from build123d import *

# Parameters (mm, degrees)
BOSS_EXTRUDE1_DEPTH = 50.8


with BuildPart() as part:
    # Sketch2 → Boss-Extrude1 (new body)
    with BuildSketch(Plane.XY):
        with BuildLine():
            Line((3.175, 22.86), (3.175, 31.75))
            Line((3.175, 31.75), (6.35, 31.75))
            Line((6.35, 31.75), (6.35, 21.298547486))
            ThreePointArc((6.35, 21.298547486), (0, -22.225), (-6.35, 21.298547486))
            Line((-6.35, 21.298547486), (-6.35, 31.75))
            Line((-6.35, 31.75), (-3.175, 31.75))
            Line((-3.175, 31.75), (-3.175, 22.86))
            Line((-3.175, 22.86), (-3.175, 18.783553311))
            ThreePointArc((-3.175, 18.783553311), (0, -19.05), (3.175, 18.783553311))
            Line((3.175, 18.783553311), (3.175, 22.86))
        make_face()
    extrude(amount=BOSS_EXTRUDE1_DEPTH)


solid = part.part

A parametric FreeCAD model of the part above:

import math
import FreeCAD as App
import Part
import Sketcher
from FreeCAD import Vector
Q = App.Units.Quantity

doc = App.newDocument("Part")
body = doc.addObject("PartDesign::Body", "Body")

sketch1 = body.newObject("Sketcher::SketchObject", "Sketch")
sketch1.AttachmentSupport = (doc.getObject("XY_Plane"), [""])
sketch1.MapMode = "FlatFace"
sketch1.addGeometry(Part.LineSegment(Vector(6.3, 31.8, 0), Vector(3.2, 31.8, 0)), False)
sketch1.addGeometry(Part.LineSegment(Vector(3.2, 31.8, 0), Vector(3.2, 18.8, 0)), False)
sketch1.addGeometry(Part.ArcOfCircle(Part.Circle(Vector(0, 0, 0), Vector(0, 0, 1), 19.1), math.radians(100), math.radians(440)), False)
sketch1.addGeometry(Part.LineSegment(Vector(-3.2, 18.8, 0), Vector(-3.2, 31.8, 0)), False)
sketch1.addGeometry(Part.LineSegment(Vector(-3.2, 31.8, 0), Vector(-6.3, 31.8, 0)), False)
sketch1.addGeometry(Part.LineSegment(Vector(-6.3, 31.8, 0), Vector(-6.3, 21.3, 0)), False)
sketch1.addGeometry(Part.ArcOfCircle(Part.Circle(Vector(0, 0, 0), Vector(0, 0, 1), 22.2), math.radians(107), math.radians(433)), False)
sketch1.addGeometry(Part.LineSegment(Vector(6.3, 21.3, 0), Vector(6.3, 31.8, 0)), False)
sketch1.addConstraint(Sketcher.Constraint("Coincident", 0, 2, 1, 1))
sketch1.addConstraint(Sketcher.Constraint("Coincident", 1, 2, 2, 2))
sketch1.addConstraint(Sketcher.Constraint("Coincident", 2, 1, 3, 1))
sketch1.addConstraint(Sketcher.Constraint("Coincident", 3, 2, 4, 1))
sketch1.addConstraint(Sketcher.Constraint("Coincident", 4, 2, 5, 1))
sketch1.addConstraint(Sketcher.Constraint("Coincident", 5, 2, 6, 1))
sketch1.addConstraint(Sketcher.Constraint("Coincident", 6, 2, 7, 1))
sketch1.addConstraint(Sketcher.Constraint("Coincident", 7, 2, 0, 1))
sketch1.addConstraint(Sketcher.Constraint("Horizontal", 0))
sketch1.addConstraint(Sketcher.Constraint("Vertical", 1))
sketch1.addConstraint(Sketcher.Constraint("Vertical", 3))
sketch1.addConstraint(Sketcher.Constraint("Horizontal", 4))
sketch1.addConstraint(Sketcher.Constraint("Vertical", 5))
sketch1.addConstraint(Sketcher.Constraint("Vertical", 7))
sketch1.addConstraint(Sketcher.Constraint("Coincident", 2, 3, -1, 1))
sketch1.addConstraint(Sketcher.Constraint("Coincident", 6, 3, -1, 1))
sketch1.addConstraint(Sketcher.Constraint("Symmetric", 0, 2, 3, 2, -2))
sketch1.addConstraint(Sketcher.Constraint("Horizontal", 5, 2, 6, 2))
sketch1.addConstraint(Sketcher.Constraint("Radius", 2, Q("0.75 in")))
sketch1.addConstraint(Sketcher.Constraint("Radius", 6, Q("0.875 in")))
sketch1.addConstraint(Sketcher.Constraint("DistanceX", 5, 2, 6, 2, Q("0.5 in")))
sketch1.addConstraint(Sketcher.Constraint("DistanceX", 0, 2, 0, 1, Q("0.125 in")))
sketch1.addConstraint(Sketcher.Constraint("DistanceY", -1, 1, 0, 2, Q("1.25 in")))
pad1 = body.newObject("PartDesign::Pad", "Pad")
pad1.Profile = sketch1
pad1.Length = Q("2 in")

doc.recompute()
